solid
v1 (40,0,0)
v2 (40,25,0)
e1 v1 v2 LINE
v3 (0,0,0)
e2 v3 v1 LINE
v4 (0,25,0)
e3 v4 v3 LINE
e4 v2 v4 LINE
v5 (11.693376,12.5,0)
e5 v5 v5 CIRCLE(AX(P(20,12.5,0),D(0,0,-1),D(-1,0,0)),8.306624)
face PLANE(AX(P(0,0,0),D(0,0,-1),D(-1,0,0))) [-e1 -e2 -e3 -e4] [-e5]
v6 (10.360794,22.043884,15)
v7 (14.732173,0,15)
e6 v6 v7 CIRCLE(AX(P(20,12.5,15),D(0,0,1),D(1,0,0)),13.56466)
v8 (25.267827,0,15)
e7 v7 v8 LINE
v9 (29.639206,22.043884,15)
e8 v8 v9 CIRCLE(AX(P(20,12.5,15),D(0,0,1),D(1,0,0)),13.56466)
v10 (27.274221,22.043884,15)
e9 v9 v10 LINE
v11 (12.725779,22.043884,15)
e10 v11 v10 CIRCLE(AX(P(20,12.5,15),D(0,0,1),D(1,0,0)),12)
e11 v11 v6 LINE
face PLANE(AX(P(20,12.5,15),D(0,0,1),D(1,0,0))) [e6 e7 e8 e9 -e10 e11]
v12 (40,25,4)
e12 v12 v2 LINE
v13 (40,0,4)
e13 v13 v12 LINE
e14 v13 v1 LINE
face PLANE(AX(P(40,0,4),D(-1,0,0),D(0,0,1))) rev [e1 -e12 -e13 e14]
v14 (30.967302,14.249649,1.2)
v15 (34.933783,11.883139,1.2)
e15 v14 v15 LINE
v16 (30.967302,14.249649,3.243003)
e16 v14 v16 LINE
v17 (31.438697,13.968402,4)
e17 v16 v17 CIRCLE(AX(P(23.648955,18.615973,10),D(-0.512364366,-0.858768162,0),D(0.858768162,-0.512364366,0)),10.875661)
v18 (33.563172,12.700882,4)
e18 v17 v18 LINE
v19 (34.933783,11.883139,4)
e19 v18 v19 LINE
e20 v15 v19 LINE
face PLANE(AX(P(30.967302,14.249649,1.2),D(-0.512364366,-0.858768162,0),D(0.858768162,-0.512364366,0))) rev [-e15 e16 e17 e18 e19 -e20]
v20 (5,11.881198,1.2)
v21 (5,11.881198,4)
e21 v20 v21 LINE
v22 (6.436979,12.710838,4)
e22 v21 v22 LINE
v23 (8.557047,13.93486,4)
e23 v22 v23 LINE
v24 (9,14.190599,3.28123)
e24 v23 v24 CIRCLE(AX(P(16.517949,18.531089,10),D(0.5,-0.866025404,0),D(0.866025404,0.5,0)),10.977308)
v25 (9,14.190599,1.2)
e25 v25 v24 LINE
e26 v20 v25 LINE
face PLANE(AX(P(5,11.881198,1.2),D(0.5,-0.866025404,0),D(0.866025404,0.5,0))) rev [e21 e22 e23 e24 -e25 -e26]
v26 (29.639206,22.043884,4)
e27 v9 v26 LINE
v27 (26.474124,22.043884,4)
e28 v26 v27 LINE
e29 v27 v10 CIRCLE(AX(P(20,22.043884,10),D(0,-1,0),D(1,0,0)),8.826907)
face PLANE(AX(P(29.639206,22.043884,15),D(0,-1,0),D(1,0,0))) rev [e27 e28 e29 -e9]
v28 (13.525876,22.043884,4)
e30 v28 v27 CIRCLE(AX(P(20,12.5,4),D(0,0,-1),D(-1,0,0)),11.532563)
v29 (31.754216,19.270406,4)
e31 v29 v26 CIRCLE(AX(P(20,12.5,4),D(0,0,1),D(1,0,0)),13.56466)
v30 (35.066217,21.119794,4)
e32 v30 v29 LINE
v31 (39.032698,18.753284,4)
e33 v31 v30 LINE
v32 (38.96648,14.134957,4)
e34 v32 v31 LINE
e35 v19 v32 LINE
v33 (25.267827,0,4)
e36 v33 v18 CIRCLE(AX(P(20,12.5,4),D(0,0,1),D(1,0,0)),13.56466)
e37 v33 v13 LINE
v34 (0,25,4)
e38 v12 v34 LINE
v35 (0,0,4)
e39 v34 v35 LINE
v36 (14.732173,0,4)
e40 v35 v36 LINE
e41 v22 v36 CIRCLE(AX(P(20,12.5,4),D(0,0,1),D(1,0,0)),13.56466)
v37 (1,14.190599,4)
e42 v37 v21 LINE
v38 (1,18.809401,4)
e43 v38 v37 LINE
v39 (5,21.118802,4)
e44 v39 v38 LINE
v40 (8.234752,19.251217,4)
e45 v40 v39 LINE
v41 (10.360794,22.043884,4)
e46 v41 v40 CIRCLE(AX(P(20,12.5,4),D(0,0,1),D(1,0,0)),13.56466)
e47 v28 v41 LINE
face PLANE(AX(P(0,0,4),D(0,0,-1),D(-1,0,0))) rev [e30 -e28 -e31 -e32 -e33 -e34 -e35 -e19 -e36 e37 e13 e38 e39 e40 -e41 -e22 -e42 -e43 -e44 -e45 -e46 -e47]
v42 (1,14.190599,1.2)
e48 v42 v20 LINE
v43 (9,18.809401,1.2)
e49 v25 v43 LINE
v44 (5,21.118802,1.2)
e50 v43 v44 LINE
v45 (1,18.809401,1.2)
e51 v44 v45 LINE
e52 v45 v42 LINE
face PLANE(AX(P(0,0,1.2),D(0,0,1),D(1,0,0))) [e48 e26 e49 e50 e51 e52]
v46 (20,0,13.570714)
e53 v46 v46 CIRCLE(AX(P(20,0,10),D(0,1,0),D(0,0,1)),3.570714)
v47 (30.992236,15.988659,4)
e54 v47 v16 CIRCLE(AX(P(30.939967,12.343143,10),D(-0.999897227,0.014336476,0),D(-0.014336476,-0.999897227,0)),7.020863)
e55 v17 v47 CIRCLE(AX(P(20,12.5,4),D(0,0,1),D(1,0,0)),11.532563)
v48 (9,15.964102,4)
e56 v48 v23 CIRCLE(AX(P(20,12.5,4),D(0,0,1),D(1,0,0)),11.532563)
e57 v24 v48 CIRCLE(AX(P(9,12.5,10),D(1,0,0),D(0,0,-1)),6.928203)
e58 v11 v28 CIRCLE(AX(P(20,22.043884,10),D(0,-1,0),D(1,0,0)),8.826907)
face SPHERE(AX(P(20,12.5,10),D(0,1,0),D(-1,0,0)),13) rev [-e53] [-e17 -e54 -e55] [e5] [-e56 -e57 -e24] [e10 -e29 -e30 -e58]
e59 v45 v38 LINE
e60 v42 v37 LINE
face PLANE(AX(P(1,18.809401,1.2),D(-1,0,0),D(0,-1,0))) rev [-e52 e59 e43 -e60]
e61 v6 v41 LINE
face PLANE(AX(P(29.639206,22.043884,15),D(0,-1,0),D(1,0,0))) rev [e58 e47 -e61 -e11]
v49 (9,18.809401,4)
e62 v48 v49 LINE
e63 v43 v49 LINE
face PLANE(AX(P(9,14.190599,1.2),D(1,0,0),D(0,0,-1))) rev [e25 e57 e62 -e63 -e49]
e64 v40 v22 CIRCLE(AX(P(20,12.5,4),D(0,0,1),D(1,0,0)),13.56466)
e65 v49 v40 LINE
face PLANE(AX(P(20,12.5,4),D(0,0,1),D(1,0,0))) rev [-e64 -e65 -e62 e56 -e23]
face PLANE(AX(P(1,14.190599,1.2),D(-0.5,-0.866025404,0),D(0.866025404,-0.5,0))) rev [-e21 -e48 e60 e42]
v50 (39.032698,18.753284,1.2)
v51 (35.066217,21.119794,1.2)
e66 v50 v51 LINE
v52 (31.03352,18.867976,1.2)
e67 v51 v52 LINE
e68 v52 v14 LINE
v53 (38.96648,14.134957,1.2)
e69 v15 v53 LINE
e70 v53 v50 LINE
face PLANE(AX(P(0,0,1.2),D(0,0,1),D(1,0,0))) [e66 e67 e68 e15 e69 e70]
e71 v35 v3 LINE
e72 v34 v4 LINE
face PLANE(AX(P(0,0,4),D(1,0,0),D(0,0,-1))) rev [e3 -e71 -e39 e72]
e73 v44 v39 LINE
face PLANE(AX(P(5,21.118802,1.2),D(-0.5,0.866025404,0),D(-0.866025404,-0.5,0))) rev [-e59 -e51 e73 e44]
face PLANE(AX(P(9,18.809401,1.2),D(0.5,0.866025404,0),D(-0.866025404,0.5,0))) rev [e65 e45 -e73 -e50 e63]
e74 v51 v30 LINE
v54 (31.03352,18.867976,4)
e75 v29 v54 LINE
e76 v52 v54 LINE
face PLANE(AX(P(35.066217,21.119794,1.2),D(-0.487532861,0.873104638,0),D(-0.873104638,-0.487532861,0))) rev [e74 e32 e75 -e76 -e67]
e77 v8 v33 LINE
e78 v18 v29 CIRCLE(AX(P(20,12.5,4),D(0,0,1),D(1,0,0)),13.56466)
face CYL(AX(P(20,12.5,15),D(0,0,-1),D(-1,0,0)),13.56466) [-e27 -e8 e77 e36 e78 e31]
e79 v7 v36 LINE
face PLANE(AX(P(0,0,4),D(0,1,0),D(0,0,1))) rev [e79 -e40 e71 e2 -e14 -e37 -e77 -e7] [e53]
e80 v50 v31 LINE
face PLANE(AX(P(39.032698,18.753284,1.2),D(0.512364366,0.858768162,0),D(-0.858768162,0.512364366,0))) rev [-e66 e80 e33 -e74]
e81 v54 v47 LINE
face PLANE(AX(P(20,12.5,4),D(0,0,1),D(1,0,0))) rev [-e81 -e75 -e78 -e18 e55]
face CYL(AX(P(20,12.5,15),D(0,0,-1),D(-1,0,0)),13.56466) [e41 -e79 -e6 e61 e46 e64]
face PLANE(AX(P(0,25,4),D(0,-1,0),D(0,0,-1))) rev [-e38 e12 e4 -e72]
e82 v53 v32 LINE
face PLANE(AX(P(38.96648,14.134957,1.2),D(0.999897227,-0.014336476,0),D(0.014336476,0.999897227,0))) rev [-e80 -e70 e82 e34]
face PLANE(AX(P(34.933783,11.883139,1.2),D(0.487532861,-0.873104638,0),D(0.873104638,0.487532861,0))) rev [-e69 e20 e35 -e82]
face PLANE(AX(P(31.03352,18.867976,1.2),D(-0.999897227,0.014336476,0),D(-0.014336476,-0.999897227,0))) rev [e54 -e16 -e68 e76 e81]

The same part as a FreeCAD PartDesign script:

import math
import FreeCAD as App
import Part
import Sketcher
from FreeCAD import Vector
Q = App.Units.Quantity


def add_polygon(sketch, points):
    """Adds a closed chain of lines whose ends are joined by coincident constraints."""
    first, n = sketch.GeometryCount, len(points)
    for a, b in zip(points, points[1:] + points[:1]):
        sketch.addGeometry(Part.LineSegment(App.Vector(*a, 0), App.Vector(*b, 0)), False)
    for i in range(n):
        sketch.addConstraint(Sketcher.Constraint("Coincident", first + i, 2, first + (i + 1) % n, 1))

doc = App.newDocument("Part")
params = doc.addObject("Spreadsheet::Sheet", "Params")
for row, (alias, value) in enumerate([
    ("sketch1_width", "40 mm"),
    ("sketch1_height", "25 mm"),
    ("pad1_length", "4 mm"),
    ("pocket1_length", "2.8 mm"),
    ("sketch3_diameter", "14 mm"),
    ("pad2_length", "11 mm"),
    ("sketch4_radius", "13 mm"),
    ("groove_angle", "360 deg"),
    ("sketch5_diameter", "16.4 mm"),
    ("pocket2_length", "9 mm"),
], start=1):
    params.set(f"A{row}", alias)
    params.set(f"B{row}", "=" + value)
    params.setAlias(f"B{row}", alias)

body = doc.addObject("PartDesign::Body", "Body")

sketch1 = body.newObject("Sketcher::SketchObject", "Sketch")
sketch1.AttachmentSupport = (doc.getObject("XY_Plane"), [""])
sketch1.MapMode = "FlatFace"
add_polygon(sketch1, [(0, 25), (0, 0), (40, 0), (40, 25)])
sketch1.addConstraint([
    Sketcher.Constraint("Vertical", 0),
    Sketcher.Constraint("Horizontal", 1),
    Sketcher.Constraint("Vertical", 2),
    Sketcher.Constraint("Horizontal", 3),
    Sketcher.Constraint("Coincident", 0, 2, -1, 1),
    Sketcher.Constraint("DistanceX", 1, 1, 1, 2, Q("40 mm")),
    Sketcher.Constraint("DistanceY", 0, 2, 0, 1, Q("25 mm")),
])
sketch1.setExpression("Constraints[9]", "Params.sketch1_width")
sketch1.setExpression("Constraints[10]", "Params.sketch1_height")
pad1 = body.newObject("PartDesign::Pad", "Pad")
pad1.Profile = sketch1
pad1.setExpression("Length", "Params.pad1_length")

sketch2 = body.newObject("Sketcher::SketchObject", "Sketch001")
sketch2.AttachmentSupport = (doc.getObject("XY_Plane"), [""])
sketch2.MapMode = "FlatFace"
sketch2.AttachmentOffset = App.Placement(Vector(0, 0, 4), App.Rotation())
add_polygon(sketch2, [(5, 11.9), (9, 14.2), (9, 18.8), (5, 21.1), (1, 18.8), (1, 14.2)])
add_polygon(sketch2, [(31, 14.2), (34.9, 11.9), (39, 14.1), (39, 18.8), (35.1, 21.1), (31, 18.9)])
sketch2.addConstraint([
    Sketcher.Constraint("Vertical", 1),
    Sketcher.Constraint("Vertical", 4),
    Sketcher.Constraint("Parallel", 0, 3),
    Sketcher.Constraint("Parallel", 2, 5),
    Sketcher.Constraint("Parallel", 6, 9),
    Sketcher.Constraint("Parallel", 7, 10),
    Sketcher.Constraint("Parallel", 8, 11),
    Sketcher.Constraint("Horizontal", 1, 2, 3, 2),
    Sketcher.Constraint("Horizontal", 0, 2, 4, 2),
    Sketcher.Constraint("Vertical", 2, 2, 5, 2),
    Sketcher.Constraint("Equal", 5, 6),
    Sketcher.Constraint("Equal", 6, 7),
    Sketcher.Constraint("Equal", 7, 8),
    Sketcher.Constraint("Equal", 8, 9),
    Sketcher.Constraint("Angle", 0, Q("30 deg")),
    Sketcher.Constraint("DistanceX", -1, 1, 0, 2, Q("9 mm")),
    Sketcher.Constraint("DistanceX", -1, 1, 2, 2, Q("5 mm")),
    Sketcher.Constraint("DistanceY", -1, 1, 0, 2, Q("14.190599 mm")),
    Sketcher.Constraint("DistanceY", -1, 1, 1, 2, Q("18.809401 mm")),
    Sketcher.Constraint("DistanceY", -1, 1, 6, 2, Q("11.883139 mm")),
    Sketcher.Constraint("DistanceX", -1, 1, 7, 2, Q("38.96648 mm")),
    Sketcher.Constraint("DistanceX", -1, 1, 10, 2, Q("31.03352 mm")),
    Sketcher.Constraint("DistanceY", -1, 1, 11, 2, Q("14.249649 mm")),
    Sketcher.Constraint("DistanceY", 5, 2, 7, 2, Q("2.253759 mm")),
])
pocket1 = body.newObject("PartDesign::Pocket", "Pocket")
pocket1.Profile = sketch2
pocket1.setExpression("Length", "Params.pocket1_length")

sketch3 = body.newObject("Sketcher::SketchObject", "Sketch002")
sketch3.AttachmentSupport = (doc.getObject("XY_Plane"), [""])
sketch3.MapMode = "FlatFace"
sketch3.AttachmentOffset = App.Placement(Vector(0, 0, 4), App.Rotation())
sketch3.addGeometry([
    Part.LineSegment(Vector(30, 22, 0), Vector(10, 22, 0)),
    Part.ArcOfCircle(Part.Circle(Vector(20, 12, 0), Vector(0, 0, 1), 14), math.radians(135), math.radians(247)),
    Part.LineSegment(Vector(15, 0, 0), Vector(25, 0, 0)),
    Part.ArcOfCircle(Part.Circle(Vector(20, 12, 0), Vector(0, 0, 1), 14), math.radians(-67), math.radians(45)),
    Part.Circle(Vector(20, 12, 0), Vector(0, 0, 1), 7),
], False)
sketch3.addConstraint([
    Sketcher.Constraint("Coincident", 0, 2, 1, 1),
    Sketcher.Constraint("Coincident", 1, 2, 2, 1),
    Sketcher.Constraint("Coincident", 2, 2, 3, 1),
    Sketcher.Constraint("Coincident", 3, 2, 0, 1),
    Sketcher.Constraint("Horizontal", 0),
    Sketcher.Constraint("Horizontal", 2),
    Sketcher.Constraint("Coincident", 3, 3, 1, 3),
    Sketcher.Constraint("Coincident", 4, 3, 1, 3),
    Sketcher.Constraint("Equal", 1, 3),
    Sketcher.Constraint("PointOnObject", 1, 2, -1),
    Sketcher.Constraint("Diameter", 4, Q("14 mm")),
    Sketcher.Constraint("DistanceX", -1, 1, 1, 3, Q("20 mm")),
    Sketcher.Constraint("DistanceY", -1, 1, 1, 3, Q("12.5 mm")),
    Sketcher.Constraint("Radius", 1, Q("13.56466 mm")),
    Sketcher.Constraint("DistanceX", 0, 2, 0, 1, Q("19.278411 mm")),
])
sketch3.setExpression("Constraints[10]", "Params.sketch3_diameter")
pad2 = body.newObject("PartDesign::Pad", "Pad001")
pad2.Profile = sketch3
pad2.setExpression("Length", "Params.pad2_length")

sketch4 = body.newObject("Sketcher::SketchObject", "Sketch003")
sketch4.AttachmentSupport = (doc.getObject("XY_Plane"), [""])
sketch4.MapMode = "FlatFace"
sketch4.AttachmentOffset = App.Placement(Vector(0, 0, 10), App.Rotation())
sketch4.addGeometry([
    Part.LineSegment(Vector(20, 0, 0), Vector(20, 26, 0)),
    Part.ArcOfCircle(Part.Circle(Vector(20, 12, 0), Vector(0, 0, 1), 13), math.radians(90), math.radians(270)),
], False)
sketch4.addGeometry(Part.LineSegment(Vector(20, 26, 0), Vector(20, 0, 0)), True)
sketch4.addConstraint([
    Sketcher.Constraint("Coincident", 0, 1, 1, 2),
    Sketcher.Constraint("Coincident", 1, 1, 0, 2),
    Sketcher.Constraint("Vertical", 0),
    Sketcher.Constraint("Vertical", 2),
    Sketcher.Constraint("Coincident", 2, 1, 1, 1),
    Sketcher.Constraint("Vertical", 1, 3, 0, 1),
    Sketcher.Constraint("Equal", 0, 2),
    Sketcher.Constraint("Radius", 1, Q("13 mm")),
    Sketcher.Constraint("DistanceX", -1, 1, 1, 3, Q("20 mm")),
    Sketcher.Constraint("DistanceY", -1, 1, 1, 3, Q("12.5 mm")),
])
sketch4.setExpression("Constraints[7]", "Params.sketch4_radius")
groove = body.newObject("PartDesign::Groove", "Groove")
groove.Profile = sketch4
groove.ReferenceAxis = (sketch4, ["Axis0"])
groove.setExpression("Angle", "Params.groove_angle")

sketch5 = body.newObject("Sketcher::SketchObject", "Sketch004")
sketch5.AttachmentSupport = (doc.getObject("XY_Plane"), [""])
sketch5.MapMode = "FlatFace"
sketch5.addGeometry(Part.Circle(Vector(20, 12, 0), Vector(0, 0, 1), 8), False)
sketch5.addConstraint([
    Sketcher.Constraint("Diameter", 0, Q("16.4 mm")),
    Sketcher.Constraint("DistanceX", -1, 1, 0, 3, Q("20 mm")),
    Sketcher.Constraint("DistanceY", -1, 1, 0, 3, Q("12.5 mm")),
])
sketch5.setExpression("Constraints[0]", "Params.sketch5_diameter")
pocket2 = body.newObject("PartDesign::Pocket", "Pocket001")
pocket2.Profile = sketch5
pocket2.setExpression("Length", "Params.pocket2_length")
pocket2.Reversed = True

doc.recompute()
